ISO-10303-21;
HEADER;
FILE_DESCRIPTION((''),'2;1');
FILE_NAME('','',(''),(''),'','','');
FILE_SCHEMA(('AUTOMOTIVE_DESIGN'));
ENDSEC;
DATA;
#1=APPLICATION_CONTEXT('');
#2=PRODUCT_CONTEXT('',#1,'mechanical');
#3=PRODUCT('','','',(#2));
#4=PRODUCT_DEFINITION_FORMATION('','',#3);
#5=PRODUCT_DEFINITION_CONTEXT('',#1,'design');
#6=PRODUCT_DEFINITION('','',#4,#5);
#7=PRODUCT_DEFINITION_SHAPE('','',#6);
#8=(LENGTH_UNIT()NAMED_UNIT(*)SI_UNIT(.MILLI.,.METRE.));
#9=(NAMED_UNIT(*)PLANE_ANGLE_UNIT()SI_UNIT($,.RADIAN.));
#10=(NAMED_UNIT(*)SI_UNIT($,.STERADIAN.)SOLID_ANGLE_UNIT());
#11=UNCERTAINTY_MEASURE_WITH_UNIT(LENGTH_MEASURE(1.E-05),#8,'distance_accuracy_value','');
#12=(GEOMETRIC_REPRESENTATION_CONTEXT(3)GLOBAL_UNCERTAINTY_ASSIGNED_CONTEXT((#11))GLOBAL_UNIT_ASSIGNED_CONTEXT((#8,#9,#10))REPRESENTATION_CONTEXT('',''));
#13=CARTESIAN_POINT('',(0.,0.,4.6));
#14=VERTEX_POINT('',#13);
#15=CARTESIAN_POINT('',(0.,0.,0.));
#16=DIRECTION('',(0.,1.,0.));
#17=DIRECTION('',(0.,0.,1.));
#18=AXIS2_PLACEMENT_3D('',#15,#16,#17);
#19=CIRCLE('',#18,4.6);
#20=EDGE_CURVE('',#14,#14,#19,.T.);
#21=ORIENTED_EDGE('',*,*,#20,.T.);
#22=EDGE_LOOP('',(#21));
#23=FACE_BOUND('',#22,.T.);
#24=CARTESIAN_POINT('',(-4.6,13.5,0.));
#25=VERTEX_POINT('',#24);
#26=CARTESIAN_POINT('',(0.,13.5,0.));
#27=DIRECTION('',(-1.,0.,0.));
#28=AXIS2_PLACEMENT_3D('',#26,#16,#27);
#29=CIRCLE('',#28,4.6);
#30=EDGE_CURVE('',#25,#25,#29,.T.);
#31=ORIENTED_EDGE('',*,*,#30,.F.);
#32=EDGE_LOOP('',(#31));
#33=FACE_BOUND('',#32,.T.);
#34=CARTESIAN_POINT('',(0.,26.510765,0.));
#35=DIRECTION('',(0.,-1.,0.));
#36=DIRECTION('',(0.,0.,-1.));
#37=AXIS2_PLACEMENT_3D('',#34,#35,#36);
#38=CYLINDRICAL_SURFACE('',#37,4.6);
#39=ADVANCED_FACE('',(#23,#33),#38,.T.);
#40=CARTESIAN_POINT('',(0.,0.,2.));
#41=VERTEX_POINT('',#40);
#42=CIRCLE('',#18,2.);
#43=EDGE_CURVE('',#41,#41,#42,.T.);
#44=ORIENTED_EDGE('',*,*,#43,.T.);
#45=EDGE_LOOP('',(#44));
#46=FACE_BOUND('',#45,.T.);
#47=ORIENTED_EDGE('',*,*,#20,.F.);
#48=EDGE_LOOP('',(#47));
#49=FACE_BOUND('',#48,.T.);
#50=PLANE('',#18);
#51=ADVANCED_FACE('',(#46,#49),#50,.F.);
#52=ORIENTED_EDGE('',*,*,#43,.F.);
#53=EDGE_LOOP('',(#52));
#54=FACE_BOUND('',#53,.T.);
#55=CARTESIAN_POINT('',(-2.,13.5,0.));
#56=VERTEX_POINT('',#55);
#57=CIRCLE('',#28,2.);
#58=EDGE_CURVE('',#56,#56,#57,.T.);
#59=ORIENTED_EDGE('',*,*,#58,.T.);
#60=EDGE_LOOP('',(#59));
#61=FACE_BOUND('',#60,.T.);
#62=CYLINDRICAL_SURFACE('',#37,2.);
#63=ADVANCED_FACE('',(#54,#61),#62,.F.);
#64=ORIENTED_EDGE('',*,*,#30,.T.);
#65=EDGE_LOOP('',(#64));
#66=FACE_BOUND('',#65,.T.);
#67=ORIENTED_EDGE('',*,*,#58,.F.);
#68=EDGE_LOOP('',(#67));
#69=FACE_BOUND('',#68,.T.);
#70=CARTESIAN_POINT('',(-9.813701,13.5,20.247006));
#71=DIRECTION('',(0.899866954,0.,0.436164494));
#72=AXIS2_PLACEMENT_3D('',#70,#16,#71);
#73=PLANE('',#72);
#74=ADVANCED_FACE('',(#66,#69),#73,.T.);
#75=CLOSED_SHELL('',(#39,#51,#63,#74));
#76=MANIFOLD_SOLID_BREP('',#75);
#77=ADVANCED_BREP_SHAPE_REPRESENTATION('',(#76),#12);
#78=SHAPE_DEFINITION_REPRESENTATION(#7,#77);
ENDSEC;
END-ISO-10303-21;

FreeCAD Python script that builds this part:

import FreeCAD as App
import Part
import Sketcher

V = App.Vector

doc = App.newDocument("Part")
body = doc.addObject("PartDesign::Body", "Body")

sketch1 = doc.addObject("Sketcher::SketchObject", "Sketch")
body.addObject(sketch1)
sketch1.AttachmentSupport = (doc.XZ_Plane, [""])
sketch1.MapMode = "FlatFace"
sketch1.addGeometry([
    Part.Circle(V(0, 0, 0), V(0, 0, 1), 4.6),
    Part.Circle(V(0, 0, 0), V(0, 0, 1), 2),
], False)
sketch1.addConstraint([
    Sketcher.Constraint("Coincident", 0, 3, -1, 1),
    Sketcher.Constraint("Coincident", 1, 3, -1, 1),
    Sketcher.Constraint("Diameter", 1, 4.0),
    Sketcher.Constraint("Diameter", 0, 9.2),
])
pad1 = doc.addObject("PartDesign::Pad", "Pad")
body.addObject(pad1)
pad1.Profile = sketch1
pad1.Length = 13.5
pad1.Reversed = True

doc.recompute()
